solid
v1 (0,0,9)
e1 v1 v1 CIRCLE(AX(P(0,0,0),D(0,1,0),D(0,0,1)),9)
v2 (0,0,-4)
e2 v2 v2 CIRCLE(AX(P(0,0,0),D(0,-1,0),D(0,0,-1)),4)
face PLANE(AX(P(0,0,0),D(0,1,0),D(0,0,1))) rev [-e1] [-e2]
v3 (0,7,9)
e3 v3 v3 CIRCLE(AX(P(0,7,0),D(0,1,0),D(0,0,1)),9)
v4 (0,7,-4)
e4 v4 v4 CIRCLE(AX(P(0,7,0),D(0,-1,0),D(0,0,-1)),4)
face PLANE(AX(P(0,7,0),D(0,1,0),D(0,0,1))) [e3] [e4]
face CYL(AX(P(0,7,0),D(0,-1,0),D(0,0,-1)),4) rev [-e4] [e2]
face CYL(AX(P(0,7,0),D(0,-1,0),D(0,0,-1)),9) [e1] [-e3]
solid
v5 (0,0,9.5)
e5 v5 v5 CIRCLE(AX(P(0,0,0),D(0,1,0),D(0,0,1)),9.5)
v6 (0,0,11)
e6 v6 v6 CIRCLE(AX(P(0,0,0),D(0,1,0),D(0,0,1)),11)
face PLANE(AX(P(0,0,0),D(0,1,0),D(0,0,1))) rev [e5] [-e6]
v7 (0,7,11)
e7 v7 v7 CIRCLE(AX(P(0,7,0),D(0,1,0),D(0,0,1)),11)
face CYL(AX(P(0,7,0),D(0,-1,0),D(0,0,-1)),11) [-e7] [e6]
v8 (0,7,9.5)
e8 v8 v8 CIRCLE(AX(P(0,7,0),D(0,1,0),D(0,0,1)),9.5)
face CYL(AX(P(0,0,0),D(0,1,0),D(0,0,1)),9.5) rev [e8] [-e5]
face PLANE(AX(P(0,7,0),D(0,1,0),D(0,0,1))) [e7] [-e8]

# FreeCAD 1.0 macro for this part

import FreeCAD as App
import Part
import Sketcher
from FreeCAD import Vector
Q = App.Units.Quantity

doc = App.newDocument("Part")
params = doc.addObject("Spreadsheet::Sheet", "Params")
for row, (alias, value) in enumerate([
    ("sketch1_diameter", "22 mm"),
    ("pad1_length", "7 mm"),
    ("sketch2_diameter", "19 mm"),
    ("pocket1_length", "7 mm"),
    ("sketch3_diameter", "18 mm"),
    ("pad2_length", "7 mm"),
    ("sketch4_diameter", "8 mm"),
    ("pocket2_length", "7 mm"),
], start=1):
    params.set(f"A{row}", alias)
    params.set(f"B{row}", "=" + value)
    params.setAlias(f"B{row}", alias)

body = doc.addObject("PartDesign::Body", "Body")

sketch1 = body.newObject("Sketcher::SketchObject", "Sketch")
sketch1.AttachmentSupport = (doc.getObject("XZ_Plane"), [""])
sketch1.MapMode = "FlatFace"
sketch1.addGeometry(Part.Circle(Vector(0, 0, 0), Vector(0, 0, 1), 11), False)
sketch1.addConstraint(Sketcher.Constraint("Coincident", 0, 3, -1, 1))
sketch1.addConstraint(Sketcher.Constraint("Diameter", 0, Q("22 mm")))
sketch1.setExpression("Constraints[1]", "Params.sketch1_diameter")
pad1 = body.newObject("PartDesign::Pad", "Pad")
pad1.Profile = sketch1
pad1.setExpression("Length", "Params.pad1_length")
pad1.Reversed = True

sketch2 = body.newObject("Sketcher::SketchObject", "Sketch001")
sketch2.AttachmentSupport = (doc.getObject("XZ_Plane"), [""])
sketch2.MapMode = "FlatFace"
sketch2.AttachmentOffset = App.Placement(Vector(0, 0, -7), App.Rotation())
sketch2.addGeometry(Part.Circle(Vector(0, 0, 0), Vector(0, 0, 1), 9.5), False)
sketch2.addConstraint(Sketcher.Constraint("Coincident", 0, 3, -1, 1))
sketch2.addConstraint(Sketcher.Constraint("Diameter", 0, Q("19 mm")))
sketch2.setExpression("Constraints[1]", "Params.sketch2_diameter")
pocket1 = body.newObject("PartDesign::Pocket", "Pocket")
pocket1.Profile = sketch2
pocket1.setExpression("Length", "Params.pocket1_length")
pocket1.Reversed = True
body2 = doc.addObject("PartDesign::Body", "Body001")

sketch3 = body2.newObject("Sketcher::SketchObject", "Sketch002")
sketch3.AttachmentSupport = (doc.getObject("XZ_Plane001"), [""])
sketch3.MapMode = "FlatFace"
sketch3.addGeometry(Part.Circle(Vector(0, 0, 0), Vector(0, 0, 1), 9), False)
sketch3.addConstraint(Sketcher.Constraint("Coincident", 0, 3, -1, 1))
sketch3.addConstraint(Sketcher.Constraint("Diameter", 0, Q("18 mm")))
sketch3.setExpression("Constraints[1]", "Params.sketch3_diameter")
pad2 = body2.newObject("PartDesign::Pad", "Pad001")
pad2.Profile = sketch3
pad2.setExpression("Length", "Params.pad2_length")
pad2.Reversed = True

sketch4 = body2.newObject("Sketcher::SketchObject", "Sketch003")
sketch4.AttachmentSupport = (doc.getObject("XZ_Plane001"), [""])
sketch4.MapMode = "FlatFace"
sketch4.addGeometry(Part.Circle(Vector(0, 0, 0), Vector(0, 0, 1), 4), False)
sketch4.addConstraint(Sketcher.Constraint("Coincident", 0, 3, -1, 1))
sketch4.addConstraint(Sketcher.Constraint("Diameter", 0, Q("8 mm")))
sketch4.setExpression("Constraints[1]", "Params.sketch4_diameter")
pocket2 = body2.newObject("PartDesign::Pocket", "Pocket001")
pocket2.Profile = sketch4
pocket2.setExpression("Length", "Params.pocket2_length")

doc.recompute()
